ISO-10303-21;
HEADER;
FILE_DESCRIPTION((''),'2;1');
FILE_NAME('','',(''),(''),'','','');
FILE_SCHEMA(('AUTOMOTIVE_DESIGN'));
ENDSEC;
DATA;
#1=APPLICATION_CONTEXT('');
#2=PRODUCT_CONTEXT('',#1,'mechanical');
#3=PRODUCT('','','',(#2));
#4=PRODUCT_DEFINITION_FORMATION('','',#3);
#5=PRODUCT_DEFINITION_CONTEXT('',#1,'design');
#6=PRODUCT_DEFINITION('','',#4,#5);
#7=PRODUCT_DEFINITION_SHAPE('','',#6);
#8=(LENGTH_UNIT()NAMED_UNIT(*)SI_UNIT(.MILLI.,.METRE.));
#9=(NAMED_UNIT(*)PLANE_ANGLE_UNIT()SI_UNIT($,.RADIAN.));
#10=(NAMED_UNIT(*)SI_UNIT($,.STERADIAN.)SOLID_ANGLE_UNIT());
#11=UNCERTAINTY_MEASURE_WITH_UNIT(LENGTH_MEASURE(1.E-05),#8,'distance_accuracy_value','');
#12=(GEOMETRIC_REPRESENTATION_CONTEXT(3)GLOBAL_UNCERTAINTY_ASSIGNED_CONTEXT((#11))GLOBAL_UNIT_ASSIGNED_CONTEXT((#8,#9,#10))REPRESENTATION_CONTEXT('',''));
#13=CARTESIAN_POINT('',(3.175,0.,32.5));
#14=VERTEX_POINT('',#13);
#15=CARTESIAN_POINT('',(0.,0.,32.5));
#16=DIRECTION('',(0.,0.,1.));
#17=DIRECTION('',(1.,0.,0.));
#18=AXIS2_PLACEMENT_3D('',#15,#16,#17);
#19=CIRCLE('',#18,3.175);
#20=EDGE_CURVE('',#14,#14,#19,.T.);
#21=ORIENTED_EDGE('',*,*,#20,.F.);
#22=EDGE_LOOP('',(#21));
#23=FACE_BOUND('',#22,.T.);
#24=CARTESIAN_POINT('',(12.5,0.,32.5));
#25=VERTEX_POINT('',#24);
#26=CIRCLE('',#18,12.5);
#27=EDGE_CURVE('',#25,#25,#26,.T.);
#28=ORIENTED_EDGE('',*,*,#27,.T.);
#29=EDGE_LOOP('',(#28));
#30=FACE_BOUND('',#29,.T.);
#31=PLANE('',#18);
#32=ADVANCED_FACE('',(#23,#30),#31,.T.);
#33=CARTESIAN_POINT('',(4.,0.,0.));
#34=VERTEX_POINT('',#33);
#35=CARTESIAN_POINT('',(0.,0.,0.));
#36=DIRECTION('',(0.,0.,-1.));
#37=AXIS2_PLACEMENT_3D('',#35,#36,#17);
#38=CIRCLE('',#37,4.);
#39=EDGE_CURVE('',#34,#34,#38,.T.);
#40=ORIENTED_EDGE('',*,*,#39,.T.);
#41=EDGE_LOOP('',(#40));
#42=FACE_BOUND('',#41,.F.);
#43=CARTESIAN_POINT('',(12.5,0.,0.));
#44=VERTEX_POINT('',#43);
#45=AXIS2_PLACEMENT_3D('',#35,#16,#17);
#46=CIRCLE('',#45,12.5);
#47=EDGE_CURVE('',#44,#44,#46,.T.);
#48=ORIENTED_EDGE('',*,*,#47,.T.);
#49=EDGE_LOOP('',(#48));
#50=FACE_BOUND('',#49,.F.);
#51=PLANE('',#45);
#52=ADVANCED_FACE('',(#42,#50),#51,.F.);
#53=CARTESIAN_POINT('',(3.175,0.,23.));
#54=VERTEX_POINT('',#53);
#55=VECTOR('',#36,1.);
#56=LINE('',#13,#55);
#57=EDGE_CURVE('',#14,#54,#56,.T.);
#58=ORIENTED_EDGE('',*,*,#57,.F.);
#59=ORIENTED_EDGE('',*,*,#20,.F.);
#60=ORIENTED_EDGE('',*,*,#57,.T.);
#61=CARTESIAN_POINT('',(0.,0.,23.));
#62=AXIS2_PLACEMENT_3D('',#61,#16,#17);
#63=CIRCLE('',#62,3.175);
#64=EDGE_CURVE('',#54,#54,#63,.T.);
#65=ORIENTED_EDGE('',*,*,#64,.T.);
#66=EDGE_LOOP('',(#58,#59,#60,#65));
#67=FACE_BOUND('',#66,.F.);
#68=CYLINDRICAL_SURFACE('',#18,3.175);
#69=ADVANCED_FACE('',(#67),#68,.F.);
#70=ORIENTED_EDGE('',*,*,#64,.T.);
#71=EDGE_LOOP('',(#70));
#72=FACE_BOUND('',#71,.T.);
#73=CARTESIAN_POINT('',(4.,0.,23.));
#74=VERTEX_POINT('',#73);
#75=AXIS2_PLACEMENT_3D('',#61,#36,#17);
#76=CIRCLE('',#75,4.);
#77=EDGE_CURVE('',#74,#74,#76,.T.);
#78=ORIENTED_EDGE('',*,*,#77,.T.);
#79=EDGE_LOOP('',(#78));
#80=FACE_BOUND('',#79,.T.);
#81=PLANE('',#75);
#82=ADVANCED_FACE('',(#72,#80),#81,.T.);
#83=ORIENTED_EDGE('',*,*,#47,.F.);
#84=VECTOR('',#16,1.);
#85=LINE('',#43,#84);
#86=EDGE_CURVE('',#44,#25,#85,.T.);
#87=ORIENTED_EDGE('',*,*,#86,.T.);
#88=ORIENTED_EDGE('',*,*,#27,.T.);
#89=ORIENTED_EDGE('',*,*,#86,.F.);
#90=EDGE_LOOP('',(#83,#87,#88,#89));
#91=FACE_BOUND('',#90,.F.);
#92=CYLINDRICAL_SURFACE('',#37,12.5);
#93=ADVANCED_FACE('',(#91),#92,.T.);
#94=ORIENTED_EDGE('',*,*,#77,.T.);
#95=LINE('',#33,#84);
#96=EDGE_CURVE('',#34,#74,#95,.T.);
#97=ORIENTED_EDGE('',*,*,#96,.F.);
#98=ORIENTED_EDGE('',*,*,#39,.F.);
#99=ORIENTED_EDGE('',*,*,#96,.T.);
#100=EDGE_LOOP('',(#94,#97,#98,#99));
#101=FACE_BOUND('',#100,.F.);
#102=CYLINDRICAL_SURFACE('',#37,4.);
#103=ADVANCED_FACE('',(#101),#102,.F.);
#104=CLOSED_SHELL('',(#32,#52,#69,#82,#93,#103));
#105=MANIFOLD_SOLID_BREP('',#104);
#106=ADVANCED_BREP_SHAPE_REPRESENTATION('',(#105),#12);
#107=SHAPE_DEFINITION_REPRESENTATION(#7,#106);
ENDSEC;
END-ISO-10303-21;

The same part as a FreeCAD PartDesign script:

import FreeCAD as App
import Part
import Sketcher
from FreeCAD import Vector

doc = App.newDocument("Part")
body = doc.addObject("PartDesign::Body", "Body")

sketch1 = body.newObject("Sketcher::SketchObject", "Sketch")
sketch1.AttachmentSupport = (doc.getObject("XY_Plane"), [""])
sketch1.MapMode = "FlatFace"
sketch1.addGeometry(Part.Circle(Vector(0, 0, 0), Vector(0, 0, 1), 12.5), False)
sketch1.addConstraint(Sketcher.Constraint("Coincident", 0, 3, -1, 1))
sketch1.addConstraint(Sketcher.Constraint("Diameter", 0, 25.0))
pad1 = body.newObject("PartDesign::Pad", "Pad")
pad1.Profile = sketch1
pad1.Length = 32.5

sketch2 = body.newObject("Sketcher::SketchObject", "Sketch001")
sketch2.AttachmentSupport = (doc.getObject("XY_Plane"), [""])
sketch2.MapMode = "FlatFace"
sketch2.AttachmentOffset = App.Placement(Vector(0, 0, 32.5), App.Rotation())
sketch2.addGeometry(Part.Circle(Vector(0, 0, 0), Vector(0, 0, 1), 3.175), False)
sketch2.addConstraint(Sketcher.Constraint("Coincident", 0, 3, -1, 1))
sketch2.addConstraint(Sketcher.Constraint("Diameter", 0, 6.35))
pocket1 = body.newObject("PartDesign::Pocket", "Pocket")
pocket1.Profile = sketch2
pocket1.Length = 10

sketch3 = body.newObject("Sketcher::SketchObject", "Sketch002")
sketch3.AttachmentSupport = (doc.getObject("XY_Plane"), [""])
sketch3.MapMode = "FlatFace"
sketch3.addGeometry(Part.Circle(Vector(0, 0, 0), Vector(0, 0, 1), 4), False)
sketch3.addConstraint(Sketcher.Constraint("Coincident", 0, 3, -1, 1))
sketch3.addConstraint(Sketcher.Constraint("Diameter", 0, 8.0))
pocket2 = body.newObject("PartDesign::Pocket", "Pocket001")
pocket2.Profile = sketch3
pocket2.Length = 23
pocket2.Reversed = True

doc.recompute()
